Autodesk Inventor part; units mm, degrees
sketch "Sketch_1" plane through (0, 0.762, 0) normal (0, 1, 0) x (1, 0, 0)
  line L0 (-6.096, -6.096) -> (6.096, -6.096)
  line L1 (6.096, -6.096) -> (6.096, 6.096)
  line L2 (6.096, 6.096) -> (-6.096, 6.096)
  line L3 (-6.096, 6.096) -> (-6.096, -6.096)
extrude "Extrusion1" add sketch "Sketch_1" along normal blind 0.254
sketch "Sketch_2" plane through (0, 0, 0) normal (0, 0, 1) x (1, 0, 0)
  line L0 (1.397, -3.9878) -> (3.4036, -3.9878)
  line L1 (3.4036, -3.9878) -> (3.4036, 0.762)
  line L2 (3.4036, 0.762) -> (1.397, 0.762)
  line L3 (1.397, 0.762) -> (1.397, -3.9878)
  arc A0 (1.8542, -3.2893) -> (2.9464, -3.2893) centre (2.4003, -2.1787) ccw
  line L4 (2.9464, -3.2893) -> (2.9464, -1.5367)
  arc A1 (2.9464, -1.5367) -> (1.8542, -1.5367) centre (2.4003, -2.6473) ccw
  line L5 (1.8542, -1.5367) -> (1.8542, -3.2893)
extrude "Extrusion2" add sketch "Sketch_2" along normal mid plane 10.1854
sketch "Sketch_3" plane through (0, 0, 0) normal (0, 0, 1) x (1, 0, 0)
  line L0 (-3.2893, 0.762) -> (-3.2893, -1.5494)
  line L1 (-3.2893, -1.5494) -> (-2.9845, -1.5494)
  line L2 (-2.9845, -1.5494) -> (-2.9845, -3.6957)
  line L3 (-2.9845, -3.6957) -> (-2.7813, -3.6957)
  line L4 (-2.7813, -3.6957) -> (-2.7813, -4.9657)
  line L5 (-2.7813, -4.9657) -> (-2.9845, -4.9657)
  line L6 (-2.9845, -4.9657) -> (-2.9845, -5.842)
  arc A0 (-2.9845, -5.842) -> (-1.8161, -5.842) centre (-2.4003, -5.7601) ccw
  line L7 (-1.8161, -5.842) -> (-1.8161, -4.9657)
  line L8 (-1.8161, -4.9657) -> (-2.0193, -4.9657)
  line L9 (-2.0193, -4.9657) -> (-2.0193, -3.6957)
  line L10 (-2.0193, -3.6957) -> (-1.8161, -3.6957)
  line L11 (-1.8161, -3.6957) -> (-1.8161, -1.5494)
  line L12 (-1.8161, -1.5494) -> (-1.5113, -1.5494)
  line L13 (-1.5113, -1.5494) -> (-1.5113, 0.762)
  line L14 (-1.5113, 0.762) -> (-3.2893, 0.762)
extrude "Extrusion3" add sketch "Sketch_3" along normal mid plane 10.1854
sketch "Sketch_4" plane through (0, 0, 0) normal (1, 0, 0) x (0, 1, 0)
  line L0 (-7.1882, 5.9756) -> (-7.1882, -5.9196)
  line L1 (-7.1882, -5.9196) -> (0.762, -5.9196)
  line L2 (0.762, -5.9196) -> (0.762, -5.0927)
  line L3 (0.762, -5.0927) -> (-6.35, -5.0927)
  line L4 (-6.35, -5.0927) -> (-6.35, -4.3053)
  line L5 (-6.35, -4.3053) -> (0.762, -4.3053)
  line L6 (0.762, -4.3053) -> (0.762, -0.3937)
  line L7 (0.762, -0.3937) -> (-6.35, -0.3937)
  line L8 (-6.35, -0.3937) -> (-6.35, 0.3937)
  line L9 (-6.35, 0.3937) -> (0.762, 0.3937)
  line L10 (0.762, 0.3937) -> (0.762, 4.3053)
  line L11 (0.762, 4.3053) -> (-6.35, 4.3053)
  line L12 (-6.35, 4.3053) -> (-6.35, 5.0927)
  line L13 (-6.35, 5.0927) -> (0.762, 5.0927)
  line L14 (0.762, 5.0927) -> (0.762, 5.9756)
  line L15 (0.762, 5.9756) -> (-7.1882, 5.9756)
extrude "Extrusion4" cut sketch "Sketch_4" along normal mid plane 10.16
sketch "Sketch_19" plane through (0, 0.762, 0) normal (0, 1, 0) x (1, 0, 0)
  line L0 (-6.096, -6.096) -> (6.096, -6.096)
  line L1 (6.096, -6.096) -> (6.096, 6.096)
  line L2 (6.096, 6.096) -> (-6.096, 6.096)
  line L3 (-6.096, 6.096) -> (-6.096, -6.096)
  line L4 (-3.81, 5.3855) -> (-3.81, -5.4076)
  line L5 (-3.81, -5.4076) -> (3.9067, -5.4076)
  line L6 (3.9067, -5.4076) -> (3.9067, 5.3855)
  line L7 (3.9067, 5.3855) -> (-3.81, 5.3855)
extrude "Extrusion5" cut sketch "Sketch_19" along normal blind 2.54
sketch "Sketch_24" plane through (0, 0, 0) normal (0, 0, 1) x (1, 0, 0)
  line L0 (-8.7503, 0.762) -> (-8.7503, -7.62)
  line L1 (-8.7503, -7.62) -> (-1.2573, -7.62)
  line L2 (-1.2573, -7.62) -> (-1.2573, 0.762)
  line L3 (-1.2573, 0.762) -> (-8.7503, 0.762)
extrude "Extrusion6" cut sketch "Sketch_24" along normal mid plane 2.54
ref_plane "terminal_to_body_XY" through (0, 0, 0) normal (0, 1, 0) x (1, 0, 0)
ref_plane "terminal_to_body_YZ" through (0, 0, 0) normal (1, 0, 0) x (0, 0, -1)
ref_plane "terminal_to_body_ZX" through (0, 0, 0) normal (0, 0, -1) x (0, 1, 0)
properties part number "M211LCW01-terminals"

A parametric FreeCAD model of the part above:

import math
import FreeCAD as App
import Part
import Sketcher

V = App.Vector
Q = App.Units.Quantity


def add_polygon(sketch, points):
    """Adds a closed chain of lines whose ends are joined by coincident constraints."""
    first, n = sketch.GeometryCount, len(points)
    for a, b in zip(points, points[1:] + points[:1]):
        sketch.addGeometry(Part.LineSegment(App.Vector(*a, 0), App.Vector(*b, 0)), False)
    for i in range(n):
        sketch.addConstraint(Sketcher.Constraint("Coincident", first + i, 2, first + (i + 1) % n, 1))

doc = App.newDocument("Part")
params = doc.addObject("Spreadsheet::Sheet", "Params")
for row, (alias, value) in enumerate([
    ("sketch1_width", "0.48 in"),
    ("pad1_length", "0.01 in"),
    ("sketch2_width", "0.079 in"),
    ("sketch2_height", "0.187 in"),
    ("sketch2_height2", "0.069 in"),
    ("pad2_length", "0.401 in"),
    ("sketch3_width", "0.07 in"),
    ("sketch3_height", "0.05 in"),
    ("sketch3_width2", "0.012 in"),
    ("sketch3_width3", "0.008 in"),
    ("sketch3_height2", "0.091 in"),
    ("pad3_length", "0.401 in"),
    ("sketch4_width", "0.28 in"),
    ("sketch4_width2", "0.313 in"),
    ("sketch4_height", "0.031 in"),
    ("sketch4_height2", "0.154 in"),
    ("pocket1_length", "0.4 in"),
    ("sketch5_width", "0.48 in"),
    ("pocket2_length", "0.1 in"),
    ("sketch6_height", "0.33 in"),
    ("sketch6_width", "0.295 in"),
    ("pocket3_length", "0.1 in"),
], start=1):
    params.set(f"A{row}", alias)
    params.set(f"B{row}", "=" + value)
    params.setAlias(f"B{row}", alias)

body = doc.addObject("PartDesign::Body", "Body")

sketch1 = body.newObject("Sketcher::SketchObject", "Sketch")
sketch1.AttachmentSupport = (doc.getObject("XZ_Plane"), [""])
sketch1.MapMode = "FlatFace"
sketch1.AttachmentOffset = App.Placement(V(0, 0, -0.03 * 25.4), App.Rotation())
add_polygon(sketch1, [(-6, -6), (-6, 6), (6, 6), (6, -6)])
sketch1.addConstraint([
    Sketcher.Constraint("Vertical", 0),
    Sketcher.Constraint("Horizontal", 1),
    Sketcher.Constraint("Vertical", 2),
    Sketcher.Constraint("Horizontal", 3),
    Sketcher.Constraint("Symmetric", 0, 2, 2, 2, -1, 1),
    Sketcher.Constraint("Equal", 3, 0),
    Sketcher.Constraint("DistanceX", 1, 1, 1, 2, Q("0.48 in")),
])
sketch1.setExpression("Constraints[10]", "Params.sketch1_width")
pad1 = body.newObject("PartDesign::Pad", "Pad")
pad1.Profile = sketch1
pad1.setExpression("Length", "Params.pad1_length")
pad1.Reversed = True

sketch2 = body.newObject("Sketcher::SketchObject", "Sketch001")
sketch2.AttachmentSupport = (doc.getObject("XY_Plane"), [""])
sketch2.MapMode = "FlatFace"
add_polygon(sketch2, [(1.4, 0.8), (1.4, -4), (3.4, -4), (3.4, 0.8)])
sketch2.addGeometry(Part.ArcOfCircle(Part.Circle(V(2.4, -2.2, 0), V(0, 0, 1), 1.2), math.radians(-116), math.radians(-64)), False)
sketch2.addGeometry(Part.LineSegment(V(1.9, -3.3, 0), V(1.9, -1.5, 0)), False)
sketch2.addGeometry(Part.ArcOfCircle(Part.Circle(V(2.4, -2.6, 0), V(0, 0, 1), 1.2), math.radians(64), math.radians(116)), False)
sketch2.addGeometry(Part.LineSegment(V(2.9, -1.5, 0), V(2.9, -3.3, 0)), False)
sketch2.addConstraint([
    Sketcher.Constraint("Coincident", 4, 1, 5, 1),
    Sketcher.Constraint("Coincident", 5, 2, 6, 2),
    Sketcher.Constraint("Coincident", 6, 1, 7, 1),
    Sketcher.Constraint("Coincident", 7, 2, 4, 2),
    Sketcher.Constraint("Vertical", 0),
    Sketcher.Constraint("Horizontal", 1),
    Sketcher.Constraint("Vertical", 2),
    Sketcher.Constraint("Horizontal", 3),
    Sketcher.Constraint("Vertical", 5),
    Sketcher.Constraint("Vertical", 7),
    Sketcher.Constraint("Equal", 4, 6),
    Sketcher.Constraint("Horizontal", 5, 2, 6, 1),
    Sketcher.Constraint("Horizontal", 4, 1, 7, 2),
    Sketcher.Constraint("DistanceX", 1, 1, 1, 2, Q("0.079 in")),
    Sketcher.Constraint("DistanceY", 0, 2, 0, 1, Q("0.187 in")),
    Sketcher.Constraint("DistanceY", 5, 1, 5, 2, Q("0.069 in")),
    Sketcher.Constraint("DistanceY", -1, 1, 2, 2, Q("0.03 in")),
    Sketcher.Constraint("Radius", 4, 1.2376),
    Sketcher.Constraint("DistanceX", -1, 1, 0, 2, Q("0.055 in")),
    Sketcher.Constraint("DistanceX", -1, 1, 4, 1, Q("0.073 in")),
    Sketcher.Constraint("DistanceX", -1, 1, 6, 1, Q("0.116 in")),
    Sketcher.Constraint("DistanceY", 4, 1, -1, 1, Q("0.1295 in")),
])
sketch2.setExpression("Constraints[17]", "Params.sketch2_width")
sketch2.setExpression("Constraints[18]", "Params.sketch2_height")
sketch2.setExpression("Constraints[19]", "Params.sketch2_height2")
pad2 = body.newObject("PartDesign::Pad", "Pad001")
pad2.Profile = sketch2
pad2.setExpression("Length", "Params.pad2_length")
pad2.Midplane = True

sketch3 = body.newObject("Sketcher::SketchObject", "Sketch002")
sketch3.AttachmentSupport = (doc.getObject("XY_Plane"), [""])
sketch3.MapMode = "FlatFace"
sketch3.addGeometry([
    Part.LineSegment(V(-1.51, 0.76, 0), V(-3.29, 0.76, 0)),
    Part.LineSegment(V(-3.29, 0.76, 0), V(-3.29, -1.55, 0)),
    Part.LineSegment(V(-3.29, -1.55, 0), V(-2.98, -1.55, 0)),
    Part.LineSegment(V(-2.98, -1.55, 0), V(-2.98, -3.7, 0)),
    Part.LineSegment(V(-2.98, -3.7, 0), V(-2.78, -3.7, 0)),
    Part.LineSegment(V(-2.78, -3.7, 0), V(-2.78, -4.97, 0)),
    Part.LineSegment(V(-2.78, -4.97, 0), V(-2.98, -4.97, 0)),
    Part.LineSegment(V(-2.98, -4.97, 0), V(-2.98, -5.84, 0)),
    Part.ArcOfCircle(Part.Circle(V(-2.4, -5.76, 0), V(0, 0, 1), 0.59), math.radians(-172), math.radians(-8)),
    Part.LineSegment(V(-1.82, -5.84, 0), V(-1.82, -4.97, 0)),
    Part.LineSegment(V(-1.82, -4.97, 0), V(-2.02, -4.97, 0)),
    Part.LineSegment(V(-2.02, -4.97, 0), V(-2.02, -3.7, 0)),
    Part.LineSegment(V(-2.02, -3.7, 0), V(-1.82, -3.7, 0)),
    Part.LineSegment(V(-1.82, -3.7, 0), V(-1.82, -1.55, 0)),
    Part.LineSegment(V(-1.82, -1.55, 0), V(-1.51, -1.55, 0)),
    Part.LineSegment(V(-1.51, -1.55, 0), V(-1.51, 0.76, 0)),
], False)
sketch3.addConstraint([
    Sketcher.Constraint("Coincident", 0, 2, 1, 1),
    Sketcher.Constraint("Coincident", 1, 2, 2, 1),
    Sketcher.Constraint("Coincident", 2, 2, 3, 1),
    Sketcher.Constraint("Coincident", 3, 2, 4, 1),
    Sketcher.Constraint("Coincident", 4, 2, 5, 1),
    Sketcher.Constraint("Coincident", 5, 2, 6, 1),
    Sketcher.Constraint("Coincident", 6, 2, 7, 1),
    Sketcher.Constraint("Coincident", 7, 2, 8, 1),
    Sketcher.Constraint("Coincident", 8, 2, 9, 1),
    Sketcher.Constraint("Coincident", 9, 2, 10, 1),
    Sketcher.Constraint("Coincident", 10, 2, 11, 1),
    Sketcher.Constraint("Coincident", 11, 2, 12, 1),
    Sketcher.Constraint("Coincident", 12, 2, 13, 1),
    Sketcher.Constraint("Coincident", 13, 2, 14, 1),
    Sketcher.Constraint("Coincident", 14, 2, 15, 1),
    Sketcher.Constraint("Coincident", 15, 2, 0, 1),
    Sketcher.Constraint("Horizontal", 0),
    Sketcher.Constraint("Vertical", 1),
    Sketcher.Constraint("Horizontal", 2),
    Sketcher.Constraint("Vertical", 3),
    Sketcher.Constraint("Horizontal", 4),
    Sketcher.Constraint("Vertical", 5),
    Sketcher.Constraint("Horizontal", 6),
    Sketcher.Constraint("Vertical", 7),
    Sketcher.Constraint("Vertical", 9),
    Sketcher.Constraint("Horizontal", 10),
    Sketcher.Constraint("Vertical", 11),
    Sketcher.Constraint("Horizontal", 12),
    Sketcher.Constraint("Vertical", 13),
    Sketcher.Constraint("Horizontal", 14),
    Sketcher.Constraint("Vertical", 15),
    Sketcher.Constraint("Horizontal", 7, 2, 8, 2),
    Sketcher.Constraint("Horizontal", 6, 2, 9, 2),
    Sketcher.Constraint("Horizontal", 4, 2, 11, 2),
    Sketcher.Constraint("Horizontal", 2, 2, 13, 2),
    Sketcher.Constraint("Vertical", 3, 2, 6, 2),
    Sketcher.Constraint("Vertical", 9, 2, 12, 2),
    Sketcher.Constraint("Equal", 6, 10),
    Sketcher.Constraint("Equal", 2, 14),
    Sketcher.Constraint("DistanceX", 0, 2, 0, 1, Q("0.07 in")),
    Sketcher.Constraint("DistanceY", 5, 2, 5, 1, Q("0.05 in")),
    Sketcher.Constraint("DistanceX", 2, 1, 2, 2, Q("0.012 in")),
    Sketcher.Constraint("DistanceX", 4, 1, 4, 2, Q("0.008 in")),
    Sketcher.Constraint("DistanceY", 1, 2, 1, 1, Q("0.091 in")),
    Sketcher.Constraint("DistanceY", -1, 1, 0, 2, Q("0.03 in")),
    Sketcher.Constraint("DistanceY", 7, 2, -1, 1, Q("0.23 in")),
    Sketcher.Constraint("Radius", 8, 0.59),
    Sketcher.Constraint("DistanceY", 3, 2, 3, 1, Q("0.0845 in")),
    Sketcher.Constraint("DistanceX", 8, 3, -1, 1, Q("0.0945 in")),
])
sketch3.setExpression("Constraints[39]", "Params.sketch3_width")
sketch3.setExpression("Constraints[40]", "Params.sketch3_height")
sketch3.setExpression("Constraints[41]", "Params.sketch3_width2")
sketch3.setExpression("Constraints[42]", "Params.sketch3_width3")
sketch3.setExpression("Constraints[43]", "Params.sketch3_height2")
pad3 = body.newObject("PartDesign::Pad", "Pad002")
pad3.Profile = sketch3
pad3.setExpression("Length", "Params.pad3_length")
pad3.Midplane = True

sketch4 = body.newObject("Sketcher::SketchObject", "Sketch003")
sketch4.AttachmentSupport = (doc.getObject("YZ_Plane"), [""])
sketch4.MapMode = "FlatFace"
add_polygon(sketch4, [(0.8, 6), (-7.2, 6), (-7.2, -5.9), (0.8, -5.9), (0.8, -5.1), (-6.3, -5.1), (-6.3, -4.3), (0.8, -4.3), (0.8, -0.4), (-6.3, -0.4), (-6.3, 0.4), (0.8, 0.4), (0.8, 4.3), (-6.3, 4.3), (-6.3, 5.1), (0.8, 5.1)])
sketch4.addConstraint([
    Sketcher.Constraint("Horizontal", 0),
    Sketcher.Constraint("Vertical", 1),
    Sketcher.Constraint("Horizontal", 2),
    Sketcher.Constraint("Vertical", 3),
    Sketcher.Constraint("Horizontal", 4),
    Sketcher.Constraint("Vertical", 5),
    Sketcher.Constraint("Horizontal", 6),
    Sketcher.Constraint("Vertical", 7),
    Sketcher.Constraint("Horizontal", 8),
    Sketcher.Constraint("Vertical", 9),
    Sketcher.Constraint("Horizontal", 10),
    Sketcher.Constraint("Vertical", 11),
    Sketcher.Constraint("Horizontal", 12),
    Sketcher.Constraint("Vertical", 13),
    Sketcher.Constraint("Horizontal", 14),
    Sketcher.Constraint("Vertical", 15),
    Sketcher.Constraint("Symmetric", 7, 2, 10, 2, -1),
    Sketcher.Constraint("Symmetric", 5, 2, 12, 2, -1),
    Sketcher.Constraint("Symmetric", 3, 2, 14, 2, -1),
    Sketcher.Constraint("Vertical", 3, 2, 6, 2),
    Sketcher.Constraint("Vertical", 5, 2, 8, 2),
    Sketcher.Constraint("Equal", 5, 9),
    Sketcher.Constraint("DistanceX", 4, 2, 4, 1, Q("0.28 in")),
    Sketcher.Constraint("DistanceX", 0, 2, 0, 1, Q("0.313 in")),
    Sketcher.Constraint("DistanceY", 5, 1, 5, 2, Q("0.031 in")),
    Sketcher.Constraint("DistanceY", 7, 1, 7, 2, Q("0.154 in")),
    Sketcher.Constraint("DistanceX", -1, 1, 2, 2, Q("0.03 in")),
    Sketcher.Constraint("DistanceY", 1, 2, 1, 1, 11.8952),
    Sketcher.Constraint("DistanceY", 3, 1, 3, 2, 0.827),
])
sketch4.setExpression("Constraints[38]", "Params.sketch4_width")
sketch4.setExpression("Constraints[39]", "Params.sketch4_width2")
sketch4.setExpression("Constraints[40]", "Params.sketch4_height")
sketch4.setExpression("Constraints[41]", "Params.sketch4_height2")
pocket1 = body.newObject("PartDesign::Pocket", "Pocket")
pocket1.Profile = sketch4
pocket1.setExpression("Length", "Params.pocket1_length")
pocket1.Midplane = True

sketch5 = body.newObject("Sketcher::SketchObject", "Sketch004")
sketch5.AttachmentSupport = (doc.getObject("XZ_Plane"), [""])
sketch5.MapMode = "FlatFace"
sketch5.AttachmentOffset = App.Placement(V(0, 0, -0.03 * 25.4), App.Rotation())
add_polygon(sketch5, [(-6, -6), (-6, 6), (6, 6), (6, -6)])
add_polygon(sketch5, [(-4, 5), (-4, -5), (4, -5), (4, 5)])
sketch5.addConstraint([
    Sketcher.Constraint("Vertical", 0),
    Sketcher.Constraint("Horizontal", 1),
    Sketcher.Constraint("Vertical", 2),
    Sketcher.Constraint("Horizontal", 3),
    Sketcher.Constraint("Vertical", 4),
    Sketcher.Constraint("Horizontal", 5),
    Sketcher.Constraint("Vertical", 6),
    Sketcher.Constraint("Horizontal", 7),
    Sketcher.Constraint("Symmetric", 0, 2, 2, 2, -1, 1),
    Sketcher.Constraint("Equal", 3, 0),
    Sketcher.Constraint("DistanceX", 1, 1, 1, 2, Q("0.48 in")),
    Sketcher.Constraint("DistanceX", 4, 2, -1, 1, Q("0.15 in")),
    Sketcher.Constraint("DistanceX", 5, 1, 5, 2, Q("0.3038 in")),
    Sketcher.Constraint("DistanceY", 4, 2, 4, 1, 10.793),
    Sketcher.Constraint("DistanceY", -1, 1, 6, 2, Q("0.2129 in")),
])
sketch5.setExpression("Constraints[18]", "Params.sketch5_width")
pocket2 = body.newObject("PartDesign::Pocket", "Pocket001")
pocket2.Profile = sketch5
pocket2.setExpression("Length", "Params.pocket2_length")

sketch6 = body.newObject("Sketcher::SketchObject", "Sketch005")
sketch6.AttachmentSupport = (doc.getObject("XY_Plane"), [""])
sketch6.MapMode = "FlatFace"
add_polygon(sketch6, [(-1, 1), (-9, 1), (-9, -8), (-1, -8)])
sketch6.addConstraint([
    Sketcher.Constraint("Horizontal", 0),
    Sketcher.Constraint("Vertical", 1),
    Sketcher.Constraint("Horizontal", 2),
    Sketcher.Constraint("Vertical", 3),
    Sketcher.Constraint("DistanceY", 1, 2, 1, 1, Q("0.33 in")),
    Sketcher.Constraint("DistanceY", 1, 2, -1, 1, Q("0.3 in")),
    Sketcher.Constraint("DistanceX", 0, 2, 0, 1, Q("0.295 in")),
    Sketcher.Constraint("DistanceX", 0, 2, -1, 1, Q("0.3445 in")),
])
sketch6.setExpression("Constraints[8]", "Params.sketch6_height")
sketch6.setExpression("Constraints[10]", "Params.sketch6_width")
pocket3 = body.newObject("PartDesign::Pocket", "Pocket002")
pocket3.Profile = sketch6
pocket3.setExpression("Length", "Params.pocket3_length")
pocket3.Midplane = True

doc.recompute()
